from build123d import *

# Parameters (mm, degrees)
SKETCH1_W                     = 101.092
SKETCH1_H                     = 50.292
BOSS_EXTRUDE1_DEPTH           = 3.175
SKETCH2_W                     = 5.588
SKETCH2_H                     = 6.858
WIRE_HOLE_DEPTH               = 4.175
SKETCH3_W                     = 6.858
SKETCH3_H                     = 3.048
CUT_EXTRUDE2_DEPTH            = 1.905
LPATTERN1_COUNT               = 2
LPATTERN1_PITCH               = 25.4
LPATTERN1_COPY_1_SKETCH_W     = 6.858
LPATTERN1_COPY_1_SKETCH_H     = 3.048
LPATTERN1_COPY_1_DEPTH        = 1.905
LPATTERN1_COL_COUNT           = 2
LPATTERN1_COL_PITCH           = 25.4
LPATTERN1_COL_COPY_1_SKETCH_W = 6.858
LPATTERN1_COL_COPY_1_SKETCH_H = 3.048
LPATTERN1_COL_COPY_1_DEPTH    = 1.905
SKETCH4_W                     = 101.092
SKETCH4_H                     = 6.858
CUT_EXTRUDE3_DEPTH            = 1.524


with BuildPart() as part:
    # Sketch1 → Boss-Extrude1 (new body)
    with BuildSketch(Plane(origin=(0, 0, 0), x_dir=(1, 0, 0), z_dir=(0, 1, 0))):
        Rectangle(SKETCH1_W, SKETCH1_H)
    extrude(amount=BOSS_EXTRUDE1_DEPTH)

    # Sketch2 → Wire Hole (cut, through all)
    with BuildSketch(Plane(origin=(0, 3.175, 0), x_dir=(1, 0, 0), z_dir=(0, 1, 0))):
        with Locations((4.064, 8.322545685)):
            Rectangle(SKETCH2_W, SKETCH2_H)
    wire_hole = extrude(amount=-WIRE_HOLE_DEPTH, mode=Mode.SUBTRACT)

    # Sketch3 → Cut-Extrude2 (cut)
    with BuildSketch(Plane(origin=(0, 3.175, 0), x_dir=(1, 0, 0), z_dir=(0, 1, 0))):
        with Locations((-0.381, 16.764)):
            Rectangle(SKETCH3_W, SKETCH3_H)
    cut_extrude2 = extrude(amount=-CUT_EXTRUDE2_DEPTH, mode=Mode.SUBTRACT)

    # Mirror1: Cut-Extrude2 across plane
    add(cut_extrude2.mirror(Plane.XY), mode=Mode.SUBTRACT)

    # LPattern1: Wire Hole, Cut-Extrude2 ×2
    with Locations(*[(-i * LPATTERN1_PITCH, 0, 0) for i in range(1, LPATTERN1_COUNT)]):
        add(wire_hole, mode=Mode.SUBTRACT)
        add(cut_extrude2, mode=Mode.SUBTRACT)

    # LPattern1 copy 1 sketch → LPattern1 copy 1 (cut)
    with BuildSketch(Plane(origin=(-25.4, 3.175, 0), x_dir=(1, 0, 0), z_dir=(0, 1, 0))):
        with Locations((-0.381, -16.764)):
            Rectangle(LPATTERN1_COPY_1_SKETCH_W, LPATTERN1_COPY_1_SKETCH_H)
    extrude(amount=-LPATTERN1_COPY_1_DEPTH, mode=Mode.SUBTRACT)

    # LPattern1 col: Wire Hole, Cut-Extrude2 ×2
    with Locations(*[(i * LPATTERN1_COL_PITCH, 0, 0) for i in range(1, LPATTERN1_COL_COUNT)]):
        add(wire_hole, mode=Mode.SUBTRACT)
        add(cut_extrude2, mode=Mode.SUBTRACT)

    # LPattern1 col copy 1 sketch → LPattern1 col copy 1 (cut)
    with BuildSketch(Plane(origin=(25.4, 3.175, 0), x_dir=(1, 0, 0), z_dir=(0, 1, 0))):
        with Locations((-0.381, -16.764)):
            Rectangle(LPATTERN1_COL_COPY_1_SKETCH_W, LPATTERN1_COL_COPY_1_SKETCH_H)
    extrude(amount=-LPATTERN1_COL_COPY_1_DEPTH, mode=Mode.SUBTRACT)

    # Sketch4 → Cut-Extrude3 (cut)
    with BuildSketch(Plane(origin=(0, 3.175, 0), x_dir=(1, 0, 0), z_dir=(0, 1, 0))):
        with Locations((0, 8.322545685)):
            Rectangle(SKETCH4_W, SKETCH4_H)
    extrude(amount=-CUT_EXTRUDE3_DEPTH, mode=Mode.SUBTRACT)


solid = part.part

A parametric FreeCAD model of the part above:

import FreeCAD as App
import Part
import Sketcher
Q = App.Units.Quantity


def add_polygon(sketch, points):
    """Adds a closed chain of lines whose ends are joined by coincident constraints."""
    first, n = sketch.GeometryCount, len(points)
    for a, b in zip(points, points[1:] + points[:1]):
        sketch.addGeometry(Part.LineSegment(App.Vector(*a, 0), App.Vector(*b, 0)), False)
    for i in range(n):
        sketch.addConstraint(Sketcher.Constraint("Coincident", first + i, 2, first + (i + 1) % n, 1))

doc = App.newDocument("Part")
body = doc.addObject("PartDesign::Body", "Body")

# Sketch on XZ plane
sketch1 = doc.addObject("Sketcher::SketchObject", "Sketch")
body.addObject(sketch1)
sketch1.AttachmentSupport = (doc.XZ_Plane, [""])
sketch1.MapMode = "FlatFace"
add_polygon(sketch1, [(-50.546, -25.146), (-50.546, 25.146), (50.546, 25.146), (50.546, -25.146)])  # lines 0-3
sketch1.addConstraint(Sketcher.Constraint("Vertical", 0))
sketch1.addConstraint(Sketcher.Constraint("Horizontal", 1))
sketch1.addConstraint(Sketcher.Constraint("Vertical", 2))
sketch1.addConstraint(Sketcher.Constraint("Horizontal", 3))
sketch1.addConstraint(Sketcher.Constraint("Symmetric", 0, 2, 2, 2, -1, 1))
sketch1.addConstraint(Sketcher.Constraint("DistanceX", 1, 1, 1, 2, Q("3.98 in")))
sketch1.addConstraint(Sketcher.Constraint("DistanceY", 0, 1, 0, 2, Q("1.98 in")))
pad1 = doc.addObject("PartDesign::Pad", "Pad")
body.addObject(pad1)
pad1.Profile = sketch1
pad1.Length = Q("0.125 in")
pad1.Reversed = True

# Sketch on XZ plane
sketch2 = doc.addObject("Sketcher::SketchObject", "Sketch001")
body.addObject(sketch2)
sketch2.AttachmentSupport = (doc.XZ_Plane, [""])
sketch2.MapMode = "FlatFace"
sketch2.AttachmentOffset = App.Placement(App.Vector(0, 0, -0.125 * 25.4), App.Rotation())
add_polygon(sketch2, [(1.27, -11.751546), (1.27, -4.893546), (6.858, -4.893546), (6.858, -11.751546)])  # lines 0-3
sketch2.addConstraint(Sketcher.Constraint("Vertical", 0))
sketch2.addConstraint(Sketcher.Constraint("Horizontal", 1))
sketch2.addConstraint(Sketcher.Constraint("Vertical", 2))
sketch2.addConstraint(Sketcher.Constraint("Horizontal", 3))
sketch2.addConstraint(Sketcher.Constraint("DistanceX", 1, 1, 1, 2, Q("0.22 in")))
sketch2.addConstraint(Sketcher.Constraint("DistanceY", 0, 1, 0, 2, Q("0.27 in")))
sketch2.addConstraint(Sketcher.Constraint("DistanceX", -1, 1, 0, 2, Q("0.05 in")))
sketch2.addConstraint(Sketcher.Constraint("DistanceY", 0, 2, -1, 1, Q("4.893546 mm")))
pocket1 = doc.addObject("PartDesign::Pocket", "Pocket")
body.addObject(pocket1)
pocket1.Profile = sketch2
pocket1.Type = "ThroughAll"
pocket1.Reversed = True

# Sketch on XZ plane
sketch3 = doc.addObject("Sketcher::SketchObject", "Sketch002")
body.addObject(sketch3)
sketch3.AttachmentSupport = (doc.XZ_Plane, [""])
sketch3.MapMode = "FlatFace"
sketch3.AttachmentOffset = App.Placement(App.Vector(0, 0, -0.125 * 25.4), App.Rotation())
add_polygon(sketch3, [(-3.81, -18.288), (-3.81, -15.24), (3.048, -15.24), (3.048, -18.288)])  # lines 0-3
sketch3.addConstraint(Sketcher.Constraint("Vertical", 0))
sketch3.addConstraint(Sketcher.Constraint("Horizontal", 1))
sketch3.addConstraint(Sketcher.Constraint("Vertical", 2))
sketch3.addConstraint(Sketcher.Constraint("Horizontal", 3))
sketch3.addConstraint(Sketcher.Constraint("DistanceX", 1, 1, 1, 2, Q("0.27 in")))
sketch3.addConstraint(Sketcher.Constraint("DistanceY", 0, 1, 0, 2, Q("0.12 in")))
sketch3.addConstraint(Sketcher.Constraint("DistanceY", 0, 2, -1, 1, Q("0.6 in")))
sketch3.addConstraint(Sketcher.Constraint("DistanceX", 0, 2, -1, 1, Q("0.15 in")))
pocket2 = doc.addObject("PartDesign::Pocket", "Pocket001")
body.addObject(pocket2)
pocket2.Profile = sketch3
pocket2.Length = Q("0.075 in")
pocket2.Reversed = True
doc.recompute()

mirrored = doc.addObject("PartDesign::Mirrored", "Mirrored")
body.addObject(mirrored)
mirrored.Originals = [pocket2]
mirrored.MirrorPlane = (doc.XY_Plane, [""])
body.Tip = mirrored
doc.recompute()

linearpattern = doc.addObject("PartDesign::LinearPattern", "LinearPattern")
body.addObject(linearpattern)
linearpattern.Originals = [pocket1, pocket2]
linearpattern.Direction = (doc.X_Axis, [""])
linearpattern.Mode = "offset"
linearpattern.Offset = Q("1 in")
linearpattern.Occurrences = 2
linearpattern.Reversed = True
body.Tip = linearpattern

# Sketch on XZ plane
sketch4 = doc.addObject("Sketcher::SketchObject", "Sketch003")
body.addObject(sketch4)
sketch4.AttachmentSupport = (doc.XZ_Plane, [""])
sketch4.MapMode = "FlatFace"
sketch4.AttachmentOffset = App.Placement(App.Vector(0, 0, -0.125 * 25.4), App.Rotation())
add_polygon(sketch4, [(-29.21, 15.24), (-29.21, 18.288), (-22.352, 18.288), (-22.352, 15.24)])  # lines 0-3
sketch4.addConstraint(Sketcher.Constraint("Vertical", 0))
sketch4.addConstraint(Sketcher.Constraint("Horizontal", 1))
sketch4.addConstraint(Sketcher.Constraint("Vertical", 2))
sketch4.addConstraint(Sketcher.Constraint("Horizontal", 3))
sketch4.addConstraint(Sketcher.Constraint("DistanceX", 1, 1, 1, 2, Q("0.27 in")))
sketch4.addConstraint(Sketcher.Constraint("DistanceY", 0, 1, 0, 2, Q("0.12 in")))
sketch4.addConstraint(Sketcher.Constraint("DistanceY", -1, 1, 2, 2, Q("0.6 in")))
sketch4.addConstraint(Sketcher.Constraint("DistanceX", 0, 2, -1, 1, Q("1.15 in")))
pocket3 = doc.addObject("PartDesign::Pocket", "Pocket002")
body.addObject(pocket3)
pocket3.Profile = sketch4
pocket3.Length = Q("0.075 in")
pocket3.Reversed = True
doc.recompute()

linearpattern2 = doc.addObject("PartDesign::LinearPattern", "LinearPattern001")
body.addObject(linearpattern2)
linearpattern2.Originals = [pocket1, pocket2]
linearpattern2.Direction = (doc.X_Axis, [""])
linearpattern2.Mode = "offset"
linearpattern2.Offset = Q("1 in")
linearpattern2.Occurrences = 2
body.Tip = linearpattern2

# Sketch on XZ plane
sketch5 = doc.addObject("Sketcher::SketchObject", "Sketch004")
body.addObject(sketch5)
sketch5.AttachmentSupport = (doc.XZ_Plane, [""])
sketch5.MapMode = "FlatFace"
sketch5.AttachmentOffset = App.Placement(App.Vector(0, 0, -0.125 * 25.4), App.Rotation())
add_polygon(sketch5, [(21.59, 15.24), (21.59, 18.288), (28.448, 18.288), (28.448, 15.24)])  # lines 0-3
sketch5.addConstraint(Sketcher.Constraint("Vertical", 0))
sketch5.addConstraint(Sketcher.Constraint("Horizontal", 1))
sketch5.addConstraint(Sketcher.Constraint("Vertical", 2))
sketch5.addConstraint(Sketcher.Constraint("Horizontal", 3))
sketch5.addConstraint(Sketcher.Constraint("DistanceX", 1, 1, 1, 2, Q("0.27 in")))
sketch5.addConstraint(Sketcher.Constraint("DistanceY", 0, 1, 0, 2, Q("0.12 in")))
sketch5.addConstraint(Sketcher.Constraint("DistanceY", -1, 1, 2, 2, Q("0.6 in")))
sketch5.addConstraint(Sketcher.Constraint("DistanceX", -1, 1, 0, 2, Q("0.85 in")))
pocket4 = doc.addObject("PartDesign::Pocket", "Pocket003")
body.addObject(pocket4)
pocket4.Profile = sketch5
pocket4.Length = Q("0.075 in")
pocket4.Reversed = True

# Sketch on XZ plane
sketch6 = doc.addObject("Sketcher::SketchObject", "Sketch005")
body.addObject(sketch6)
sketch6.AttachmentSupport = (doc.XZ_Plane, [""])
sketch6.MapMode = "FlatFace"
sketch6.AttachmentOffset = App.Placement(App.Vector(0, 0, -0.125 * 25.4), App.Rotation())
add_polygon(sketch6, [(-50.546, -11.751546), (-50.546, -4.893546), (50.546, -4.893546), (50.546, -11.751546)])  # lines 0-3
sketch6.addConstraint(Sketcher.Constraint("Vertical", 0))
sketch6.addConstraint(Sketcher.Constraint("Horizontal", 1))
sketch6.addConstraint(Sketcher.Constraint("Vertical", 2))
sketch6.addConstraint(Sketcher.Constraint("Horizontal", 3))
sketch6.addConstraint(Sketcher.Constraint("DistanceX", 1, 1, 1, 2, Q("3.98 in")))
sketch6.addConstraint(Sketcher.Constraint("DistanceY", 0, 1, 0, 2, Q("0.27 in")))
sketch6.addConstraint(Sketcher.Constraint("DistanceX", 0, 2, -1, 1, Q("1.99 in")))
sketch6.addConstraint(Sketcher.Constraint("DistanceY", 0, 2, -1, 1, Q("4.893546 mm")))
pocket5 = doc.addObject("PartDesign::Pocket", "Pocket004")
body.addObject(pocket5)
pocket5.Profile = sketch6
pocket5.Length = Q("0.06 in")
pocket5.Reversed = True

doc.recompute()
